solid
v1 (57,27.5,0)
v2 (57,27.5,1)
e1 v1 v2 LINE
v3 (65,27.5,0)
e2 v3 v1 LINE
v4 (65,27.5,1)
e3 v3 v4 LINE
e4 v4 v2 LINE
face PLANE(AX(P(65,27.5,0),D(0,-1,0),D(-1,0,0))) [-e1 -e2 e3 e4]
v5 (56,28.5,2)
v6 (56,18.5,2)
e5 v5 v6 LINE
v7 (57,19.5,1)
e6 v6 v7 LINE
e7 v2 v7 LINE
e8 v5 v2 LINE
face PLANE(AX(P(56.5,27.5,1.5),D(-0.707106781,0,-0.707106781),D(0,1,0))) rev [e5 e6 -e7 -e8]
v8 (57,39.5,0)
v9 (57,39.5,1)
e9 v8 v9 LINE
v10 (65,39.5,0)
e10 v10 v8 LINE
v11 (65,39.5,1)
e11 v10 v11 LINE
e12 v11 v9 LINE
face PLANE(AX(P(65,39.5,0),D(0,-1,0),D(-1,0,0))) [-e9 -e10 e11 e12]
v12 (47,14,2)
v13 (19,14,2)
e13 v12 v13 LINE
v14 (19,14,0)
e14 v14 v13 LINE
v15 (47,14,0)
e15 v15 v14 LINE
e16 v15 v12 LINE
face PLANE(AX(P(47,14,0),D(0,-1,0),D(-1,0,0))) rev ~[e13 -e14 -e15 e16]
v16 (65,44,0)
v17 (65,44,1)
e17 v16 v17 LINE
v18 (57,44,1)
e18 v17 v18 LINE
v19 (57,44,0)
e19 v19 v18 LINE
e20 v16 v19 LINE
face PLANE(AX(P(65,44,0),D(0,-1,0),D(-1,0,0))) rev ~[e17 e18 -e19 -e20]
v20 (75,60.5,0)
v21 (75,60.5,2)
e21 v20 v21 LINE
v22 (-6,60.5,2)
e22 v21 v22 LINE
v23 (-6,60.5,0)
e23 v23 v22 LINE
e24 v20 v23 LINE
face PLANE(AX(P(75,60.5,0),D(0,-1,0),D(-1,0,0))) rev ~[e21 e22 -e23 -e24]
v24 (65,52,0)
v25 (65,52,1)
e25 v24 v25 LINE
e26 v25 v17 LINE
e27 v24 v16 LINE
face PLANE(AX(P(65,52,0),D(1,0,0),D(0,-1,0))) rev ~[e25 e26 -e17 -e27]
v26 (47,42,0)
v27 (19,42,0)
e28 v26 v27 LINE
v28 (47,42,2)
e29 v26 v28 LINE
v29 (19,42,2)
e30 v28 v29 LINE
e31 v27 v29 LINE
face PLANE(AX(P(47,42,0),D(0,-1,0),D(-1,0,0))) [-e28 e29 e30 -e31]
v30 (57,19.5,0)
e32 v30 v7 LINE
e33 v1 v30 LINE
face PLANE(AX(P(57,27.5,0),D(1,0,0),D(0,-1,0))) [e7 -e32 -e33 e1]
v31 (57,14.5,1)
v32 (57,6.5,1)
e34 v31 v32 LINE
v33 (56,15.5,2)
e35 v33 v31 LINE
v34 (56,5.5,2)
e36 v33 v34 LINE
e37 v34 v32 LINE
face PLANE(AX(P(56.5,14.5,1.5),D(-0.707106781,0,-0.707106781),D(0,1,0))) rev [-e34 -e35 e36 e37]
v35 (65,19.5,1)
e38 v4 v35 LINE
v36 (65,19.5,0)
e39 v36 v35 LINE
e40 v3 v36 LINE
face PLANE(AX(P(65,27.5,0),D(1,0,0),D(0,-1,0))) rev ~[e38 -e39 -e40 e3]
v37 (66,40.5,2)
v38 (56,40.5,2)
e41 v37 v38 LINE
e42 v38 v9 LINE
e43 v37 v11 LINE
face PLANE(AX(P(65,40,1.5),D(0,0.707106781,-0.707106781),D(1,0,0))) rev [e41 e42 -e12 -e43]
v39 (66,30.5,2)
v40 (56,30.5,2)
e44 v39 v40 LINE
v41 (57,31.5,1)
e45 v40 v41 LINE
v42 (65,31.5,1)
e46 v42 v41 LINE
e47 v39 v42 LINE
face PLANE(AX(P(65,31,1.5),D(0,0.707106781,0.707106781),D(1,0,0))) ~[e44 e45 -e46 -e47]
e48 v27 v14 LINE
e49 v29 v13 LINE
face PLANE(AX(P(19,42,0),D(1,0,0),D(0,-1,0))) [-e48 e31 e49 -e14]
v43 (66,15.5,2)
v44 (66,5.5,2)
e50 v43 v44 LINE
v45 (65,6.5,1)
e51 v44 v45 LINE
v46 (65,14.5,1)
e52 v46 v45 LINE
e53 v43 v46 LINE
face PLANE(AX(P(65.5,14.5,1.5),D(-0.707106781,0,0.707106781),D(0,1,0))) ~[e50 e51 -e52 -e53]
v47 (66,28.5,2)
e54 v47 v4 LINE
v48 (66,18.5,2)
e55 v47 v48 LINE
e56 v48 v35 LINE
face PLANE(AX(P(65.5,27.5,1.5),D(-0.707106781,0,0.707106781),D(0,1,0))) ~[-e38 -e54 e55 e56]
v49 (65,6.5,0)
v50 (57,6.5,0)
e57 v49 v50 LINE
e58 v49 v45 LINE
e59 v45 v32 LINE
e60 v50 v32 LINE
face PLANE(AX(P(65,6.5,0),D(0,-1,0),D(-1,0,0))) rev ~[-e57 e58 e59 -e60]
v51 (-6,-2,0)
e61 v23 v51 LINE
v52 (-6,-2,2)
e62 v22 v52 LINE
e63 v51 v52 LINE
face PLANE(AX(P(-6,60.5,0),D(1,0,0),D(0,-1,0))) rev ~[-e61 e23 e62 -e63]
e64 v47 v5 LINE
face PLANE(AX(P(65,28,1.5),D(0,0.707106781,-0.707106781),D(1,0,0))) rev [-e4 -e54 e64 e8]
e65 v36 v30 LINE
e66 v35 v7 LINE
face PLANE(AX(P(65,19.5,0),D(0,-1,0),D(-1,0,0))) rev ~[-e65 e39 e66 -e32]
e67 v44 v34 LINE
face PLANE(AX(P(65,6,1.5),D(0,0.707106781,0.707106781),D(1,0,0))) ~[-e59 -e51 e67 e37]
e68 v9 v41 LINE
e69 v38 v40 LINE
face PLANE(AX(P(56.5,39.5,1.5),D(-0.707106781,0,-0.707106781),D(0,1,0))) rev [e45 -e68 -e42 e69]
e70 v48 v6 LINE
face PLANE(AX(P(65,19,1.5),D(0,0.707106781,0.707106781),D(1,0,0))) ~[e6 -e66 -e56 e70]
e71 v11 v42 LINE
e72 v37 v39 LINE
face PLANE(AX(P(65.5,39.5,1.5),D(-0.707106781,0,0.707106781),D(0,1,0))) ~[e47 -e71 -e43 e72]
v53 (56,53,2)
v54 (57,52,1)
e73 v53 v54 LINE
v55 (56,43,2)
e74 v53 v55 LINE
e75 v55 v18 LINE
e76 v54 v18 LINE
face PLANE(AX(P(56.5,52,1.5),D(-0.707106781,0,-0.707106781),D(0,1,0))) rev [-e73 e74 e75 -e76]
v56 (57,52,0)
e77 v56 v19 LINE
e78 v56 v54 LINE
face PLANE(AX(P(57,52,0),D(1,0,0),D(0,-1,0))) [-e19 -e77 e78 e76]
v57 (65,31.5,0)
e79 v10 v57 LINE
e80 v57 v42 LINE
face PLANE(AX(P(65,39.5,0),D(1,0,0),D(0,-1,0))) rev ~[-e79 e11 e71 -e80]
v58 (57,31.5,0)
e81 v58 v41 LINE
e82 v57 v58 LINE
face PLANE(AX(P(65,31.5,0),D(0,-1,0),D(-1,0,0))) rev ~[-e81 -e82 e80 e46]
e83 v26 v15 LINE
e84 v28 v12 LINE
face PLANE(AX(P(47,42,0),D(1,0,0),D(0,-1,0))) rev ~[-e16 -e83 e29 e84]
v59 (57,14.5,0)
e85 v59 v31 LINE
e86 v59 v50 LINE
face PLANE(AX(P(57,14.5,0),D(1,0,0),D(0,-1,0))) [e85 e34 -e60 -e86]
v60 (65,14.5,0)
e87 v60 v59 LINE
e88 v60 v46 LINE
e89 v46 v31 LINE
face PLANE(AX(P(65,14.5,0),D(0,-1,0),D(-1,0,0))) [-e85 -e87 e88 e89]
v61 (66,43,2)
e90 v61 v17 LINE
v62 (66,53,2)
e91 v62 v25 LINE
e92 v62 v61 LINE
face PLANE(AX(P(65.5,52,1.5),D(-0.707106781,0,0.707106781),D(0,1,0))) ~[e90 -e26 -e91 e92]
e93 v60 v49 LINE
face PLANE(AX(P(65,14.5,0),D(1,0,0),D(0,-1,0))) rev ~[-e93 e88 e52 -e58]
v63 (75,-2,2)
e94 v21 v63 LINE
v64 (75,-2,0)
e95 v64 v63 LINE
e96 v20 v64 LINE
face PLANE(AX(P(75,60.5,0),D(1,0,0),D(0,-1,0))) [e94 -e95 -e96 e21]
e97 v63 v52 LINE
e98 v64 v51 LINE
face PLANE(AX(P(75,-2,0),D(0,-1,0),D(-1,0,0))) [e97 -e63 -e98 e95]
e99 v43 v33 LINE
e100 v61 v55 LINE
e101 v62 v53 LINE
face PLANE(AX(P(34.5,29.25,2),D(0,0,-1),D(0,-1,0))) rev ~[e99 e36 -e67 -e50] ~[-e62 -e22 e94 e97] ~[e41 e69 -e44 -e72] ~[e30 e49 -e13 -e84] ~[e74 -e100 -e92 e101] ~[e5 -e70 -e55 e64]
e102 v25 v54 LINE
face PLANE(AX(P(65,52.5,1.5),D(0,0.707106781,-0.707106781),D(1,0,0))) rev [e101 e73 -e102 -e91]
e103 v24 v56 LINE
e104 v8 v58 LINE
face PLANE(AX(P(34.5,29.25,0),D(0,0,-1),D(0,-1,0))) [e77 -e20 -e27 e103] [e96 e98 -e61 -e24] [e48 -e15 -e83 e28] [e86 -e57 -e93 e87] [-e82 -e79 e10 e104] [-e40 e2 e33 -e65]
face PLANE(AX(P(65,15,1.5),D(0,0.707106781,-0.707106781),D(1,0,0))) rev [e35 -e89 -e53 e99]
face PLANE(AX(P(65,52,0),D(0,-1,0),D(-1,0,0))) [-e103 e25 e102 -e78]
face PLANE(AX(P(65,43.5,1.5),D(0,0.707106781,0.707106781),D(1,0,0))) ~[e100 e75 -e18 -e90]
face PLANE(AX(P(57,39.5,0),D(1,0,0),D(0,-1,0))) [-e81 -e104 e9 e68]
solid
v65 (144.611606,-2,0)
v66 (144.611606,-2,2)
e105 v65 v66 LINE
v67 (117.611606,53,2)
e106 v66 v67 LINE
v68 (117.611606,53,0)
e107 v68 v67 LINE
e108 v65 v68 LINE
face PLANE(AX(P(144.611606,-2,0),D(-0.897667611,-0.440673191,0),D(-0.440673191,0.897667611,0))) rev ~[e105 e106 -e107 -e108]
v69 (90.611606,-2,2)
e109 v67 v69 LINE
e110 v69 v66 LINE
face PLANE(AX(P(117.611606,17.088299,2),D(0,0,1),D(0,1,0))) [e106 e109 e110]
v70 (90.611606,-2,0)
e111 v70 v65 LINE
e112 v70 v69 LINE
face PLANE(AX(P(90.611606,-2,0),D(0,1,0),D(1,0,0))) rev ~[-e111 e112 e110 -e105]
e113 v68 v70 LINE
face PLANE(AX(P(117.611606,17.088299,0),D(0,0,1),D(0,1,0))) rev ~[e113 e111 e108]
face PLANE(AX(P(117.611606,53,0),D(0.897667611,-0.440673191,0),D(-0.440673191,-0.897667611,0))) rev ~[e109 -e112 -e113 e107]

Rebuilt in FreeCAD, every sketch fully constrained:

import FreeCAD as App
import Part
import Sketcher


def edges_at(feature, points):
    """Names of the edges that pass closest to the given points."""
    edges = feature.Shape.Edges
    near = lambda p: min(range(len(edges)), key=lambda i: edges[i].distToShape(Part.Vertex(*p))[0])
    return sorted({f"Edge{near(p) + 1}" for p in points})


def add_polygon(sketch, points):
    """Adds a closed chain of lines whose ends are joined by coincident constraints."""
    first, n = sketch.GeometryCount, len(points)
    for a, b in zip(points, points[1:] + points[:1]):
        sketch.addGeometry(Part.LineSegment(App.Vector(*a, 0), App.Vector(*b, 0)), False)
    for i in range(n):
        sketch.addConstraint(Sketcher.Constraint("Coincident", first + i, 2, first + (i + 1) % n, 1))

doc = App.newDocument("Part")
params = doc.addObject("Spreadsheet::Sheet", "Params")
for row, (alias, value) in enumerate([
    ("sketch1_width", "54 mm"),
    ("pad1_length", "2 mm"),
    ("sketch2_width", "8 mm"),
    ("pad2_length", "2 mm"),
    ("sketch3_width", "8 mm"),
    ("pad3_length", "2 mm"),
    ("sketch4_width", "8 mm"),
    ("pad4_length", "2 mm"),
    ("sketch5_width", "8 mm"),
    ("pad5_length", "2 mm"),
    ("sketch6_width", "28 mm"),
    ("pad6_length", "2 mm"),
    ("sketch7_width", "81 mm"),
    ("sketch7_height", "62.5 mm"),
    ("pad7_length", "2 mm"),
    ("chamfer_size", "1 mm"),
], start=1):
    params.set(f"A{row}", alias)
    params.set(f"B{row}", "=" + value)
    params.setAlias(f"B{row}", alias)

body = doc.addObject("PartDesign::Body", "Body")

sketch1 = body.newObject("Sketcher::SketchObject", "Sketch")
sketch1.AttachmentSupport = (doc.getObject("XY_Plane"), [""])
sketch1.MapMode = "FlatFace"
add_polygon(sketch1, [(118, 53), (91, -2), (145, -2)])
sketch1.addConstraint([
    Sketcher.Constraint("Horizontal", 1),
    Sketcher.Constraint("Equal", 0, 2),
    Sketcher.Constraint("DistanceX", 1, 1, 1, 2, 54.0),
    Sketcher.Constraint("DistanceY", 0, 2, -1, 1, 2.0),
    Sketcher.Constraint("DistanceY", -1, 1, 2, 2, 53.0),
    Sketcher.Constraint("DistanceX", -1, 1, 0, 2, 90.611606),
])
sketch1.setExpression("Constraints[5]", "Params.sketch1_width")
pad1 = body.newObject("PartDesign::Pad", "Pad")
pad1.Profile = sketch1
pad1.setExpression("Length", "Params.pad1_length")
body2 = doc.addObject("PartDesign::Body", "Body001")

sketch2 = body2.newObject("Sketcher::SketchObject", "Sketch001")
sketch2.AttachmentSupport = (doc.getObject("XY_Plane001"), [""])
sketch2.MapMode = "FlatFace"
add_polygon(sketch2, [(57, 14), (65, 14), (65, 6), (57, 6)])
sketch2.addConstraint([
    Sketcher.Constraint("Horizontal", 0),
    Sketcher.Constraint("Vertical", 1),
    Sketcher.Constraint("Horizontal", 2),
    Sketcher.Constraint("Vertical", 3),
    Sketcher.Constraint("Equal", 2, 1),
    Sketcher.Constraint("DistanceX", 0, 1, 0, 2, 8.0),
    Sketcher.Constraint("DistanceX", -1, 1, 0, 2, 65.0),
    Sketcher.Constraint("DistanceY", -1, 1, 0, 2, 14.5),
])
sketch2.setExpression("Constraints[9]", "Params.sketch2_width")
pad2 = body2.newObject("PartDesign::Pad", "Pad001")
pad2.Profile = sketch2
pad2.setExpression("Length", "Params.pad2_length")
body3 = doc.addObject("PartDesign::Body", "Body002")

sketch3 = body3.newObject("Sketcher::SketchObject", "Sketch002")
sketch3.AttachmentSupport = (doc.getObject("XY_Plane002"), [""])
sketch3.MapMode = "FlatFace"
add_polygon(sketch3, [(57, 28), (65, 28), (65, 20), (57, 20)])
sketch3.addConstraint([
    Sketcher.Constraint("Horizontal", 0),
    Sketcher.Constraint("Vertical", 1),
    Sketcher.Constraint("Horizontal", 2),
    Sketcher.Constraint("Vertical", 3),
    Sketcher.Constraint("Equal", 2, 1),
    Sketcher.Constraint("DistanceX", 0, 1, 0, 2, 8.0),
    Sketcher.Constraint("DistanceX", -1, 1, 0, 2, 65.0),
    Sketcher.Constraint("DistanceY", -1, 1, 0, 2, 27.5),
])
sketch3.setExpression("Constraints[9]", "Params.sketch3_width")
pad3 = body3.newObject("PartDesign::Pad", "Pad002")
pad3.Profile = sketch3
pad3.setExpression("Length", "Params.pad3_length")
body4 = doc.addObject("PartDesign::Body", "Body003")

sketch4 = body4.newObject("Sketcher::SketchObject", "Sketch003")
sketch4.AttachmentSupport = (doc.getObject("XY_Plane003"), [""])
sketch4.MapMode = "FlatFace"
add_polygon(sketch4, [(57, 40), (65, 40), (65, 32), (57, 32)])
sketch4.addConstraint([
    Sketcher.Constraint("Horizontal", 0),
    Sketcher.Constraint("Vertical", 1),
    Sketcher.Constraint("Horizontal", 2),
    Sketcher.Constraint("Vertical", 3),
    Sketcher.Constraint("Equal", 2, 1),
    Sketcher.Constraint("DistanceX", 0, 1, 0, 2, 8.0),
    Sketcher.Constraint("DistanceX", -1, 1, 0, 2, 65.0),
    Sketcher.Constraint("DistanceY", -1, 1, 0, 2, 39.5),
])
sketch4.setExpression("Constraints[9]", "Params.sketch4_width")
pad4 = body4.newObject("PartDesign::Pad", "Pad003")
pad4.Profile = sketch4
pad4.setExpression("Length", "Params.pad4_length")
body5 = doc.addObject("PartDesign::Body", "Body004")

sketch5 = body5.newObject("Sketcher::SketchObject", "Sketch004")
sketch5.AttachmentSupport = (doc.getObject("XY_Plane004"), [""])
sketch5.MapMode = "FlatFace"
add_polygon(sketch5, [(57, 52), (65, 52), (65, 44), (57, 44)])
sketch5.addConstraint([
    Sketcher.Constraint("Horizontal", 0),
    Sketcher.Constraint("Vertical", 1),
    Sketcher.Constraint("Horizontal", 2),
    Sketcher.Constraint("Vertical", 3),
    Sketcher.Constraint("Equal", 2, 1),
    Sketcher.Constraint("DistanceX", 0, 1, 0, 2, 8.0),
    Sketcher.Constraint("DistanceX", -1, 1, 0, 2, 65.0),
    Sketcher.Constraint("DistanceY", -1, 1, 0, 2, 52.0),
])
sketch5.setExpression("Constraints[9]", "Params.sketch5_width")
pad5 = body5.newObject("PartDesign::Pad", "Pad004")
pad5.Profile = sketch5
pad5.setExpression("Length", "Params.pad5_length")
body6 = doc.addObject("PartDesign::Body", "Body005")
body6.AllowCompound = True

sketch6 = body6.newObject("Sketcher::SketchObject", "Sketch005")
sketch6.AttachmentSupport = (doc.getObject("XY_Plane005"), [""])
sketch6.MapMode = "FlatFace"
add_polygon(sketch6, [(19, 42), (47, 42), (47, 14), (19, 14)])
sketch6.addConstraint([
    Sketcher.Constraint("Horizontal", 0),
    Sketcher.Constraint("Vertical", 1),
    Sketcher.Constraint("Horizontal", 2),
    Sketcher.Constraint("Vertical", 3),
    Sketcher.Constraint("Equal", 2, 1),
    Sketcher.Constraint("DistanceX", 0, 1, 0, 2, 28.0),
    Sketcher.Constraint("DistanceX", -1, 1, 0, 2, 47.0),
    Sketcher.Constraint("DistanceY", -1, 1, 0, 2, 42.0),
])
sketch6.setExpression("Constraints[9]", "Params.sketch6_width")
pad6 = body6.newObject("PartDesign::Pad", "Pad005")
pad6.Profile = sketch6
pad6.setExpression("Length", "Params.pad6_length")
doc.recompute()

boolean = body6.newObject("PartDesign::Boolean", "Boolean")
boolean.Type = "Fuse"
boolean.addObjects([body2])
doc.recompute()

boolean2 = body6.newObject("PartDesign::Boolean", "Boolean001")
boolean2.Type = "Fuse"
boolean2.addObjects([body3])
doc.recompute()

boolean3 = body6.newObject("PartDesign::Boolean", "Boolean002")
boolean3.Type = "Fuse"
boolean3.addObjects([body4])
doc.recompute()

boolean4 = body6.newObject("PartDesign::Boolean", "Boolean003")
boolean4.Type = "Fuse"
boolean4.addObjects([body5])
body7 = doc.addObject("PartDesign::Body", "Body006")

sketch7 = body7.newObject("Sketcher::SketchObject", "Sketch006")
sketch7.AttachmentSupport = (doc.getObject("XY_Plane006"), [""])
sketch7.MapMode = "FlatFace"
add_polygon(sketch7, [(-6, 60), (75, 60), (75, -2), (-6, -2)])
sketch7.addConstraint([
    Sketcher.Constraint("Horizontal", 0),
    Sketcher.Constraint("Vertical", 1),
    Sketcher.Constraint("Horizontal", 2),
    Sketcher.Constraint("Vertical", 3),
    Sketcher.Constraint("DistanceX", 0, 1, 0, 2, 81.0),
    Sketcher.Constraint("DistanceY", 1, 2, 1, 1, 62.5),
    Sketcher.Constraint("DistanceX", -1, 1, 0, 2, 75.0),
    Sketcher.Constraint("DistanceY", 1, 2, -1, 1, 2.0),
])
sketch7.setExpression("Constraints[8]", "Params.sketch7_width")
sketch7.setExpression("Constraints[9]", "Params.sketch7_height")
pad7 = body7.newObject("PartDesign::Pad", "Pad006")
pad7.Profile = sketch7
pad7.setExpression("Length", "Params.pad7_length")
doc.recompute()

boolean5 = body7.newObject("PartDesign::Boolean", "Boolean004")
boolean5.Type = "Cut"
boolean5.addObjects([body6])
doc.recompute()

chamfer = body7.newObject("PartDesign::Chamfer", "Chamfer")
chamfer.Base = (boolean5, edges_at(boolean5, [
    (61, 27.5, 2),
    (57, 23.5, 2),
    (61, 19.5, 2),
    (65, 23.5, 2),
    (61, 39.5, 2),
    (57, 35.5, 2),
    (61, 31.5, 2),
    (65, 35.5, 2),
    (61, 52, 2),
    (57, 48, 2),
    (61, 44, 2),
    (65, 48, 2),
    (61, 14.5, 2),
    (57, 10.5, 2),
    (61, 6.5, 2),
    (65, 10.5, 2),
]))
chamfer.setExpression("Size", "Params.chamfer_size")

doc.recompute()
